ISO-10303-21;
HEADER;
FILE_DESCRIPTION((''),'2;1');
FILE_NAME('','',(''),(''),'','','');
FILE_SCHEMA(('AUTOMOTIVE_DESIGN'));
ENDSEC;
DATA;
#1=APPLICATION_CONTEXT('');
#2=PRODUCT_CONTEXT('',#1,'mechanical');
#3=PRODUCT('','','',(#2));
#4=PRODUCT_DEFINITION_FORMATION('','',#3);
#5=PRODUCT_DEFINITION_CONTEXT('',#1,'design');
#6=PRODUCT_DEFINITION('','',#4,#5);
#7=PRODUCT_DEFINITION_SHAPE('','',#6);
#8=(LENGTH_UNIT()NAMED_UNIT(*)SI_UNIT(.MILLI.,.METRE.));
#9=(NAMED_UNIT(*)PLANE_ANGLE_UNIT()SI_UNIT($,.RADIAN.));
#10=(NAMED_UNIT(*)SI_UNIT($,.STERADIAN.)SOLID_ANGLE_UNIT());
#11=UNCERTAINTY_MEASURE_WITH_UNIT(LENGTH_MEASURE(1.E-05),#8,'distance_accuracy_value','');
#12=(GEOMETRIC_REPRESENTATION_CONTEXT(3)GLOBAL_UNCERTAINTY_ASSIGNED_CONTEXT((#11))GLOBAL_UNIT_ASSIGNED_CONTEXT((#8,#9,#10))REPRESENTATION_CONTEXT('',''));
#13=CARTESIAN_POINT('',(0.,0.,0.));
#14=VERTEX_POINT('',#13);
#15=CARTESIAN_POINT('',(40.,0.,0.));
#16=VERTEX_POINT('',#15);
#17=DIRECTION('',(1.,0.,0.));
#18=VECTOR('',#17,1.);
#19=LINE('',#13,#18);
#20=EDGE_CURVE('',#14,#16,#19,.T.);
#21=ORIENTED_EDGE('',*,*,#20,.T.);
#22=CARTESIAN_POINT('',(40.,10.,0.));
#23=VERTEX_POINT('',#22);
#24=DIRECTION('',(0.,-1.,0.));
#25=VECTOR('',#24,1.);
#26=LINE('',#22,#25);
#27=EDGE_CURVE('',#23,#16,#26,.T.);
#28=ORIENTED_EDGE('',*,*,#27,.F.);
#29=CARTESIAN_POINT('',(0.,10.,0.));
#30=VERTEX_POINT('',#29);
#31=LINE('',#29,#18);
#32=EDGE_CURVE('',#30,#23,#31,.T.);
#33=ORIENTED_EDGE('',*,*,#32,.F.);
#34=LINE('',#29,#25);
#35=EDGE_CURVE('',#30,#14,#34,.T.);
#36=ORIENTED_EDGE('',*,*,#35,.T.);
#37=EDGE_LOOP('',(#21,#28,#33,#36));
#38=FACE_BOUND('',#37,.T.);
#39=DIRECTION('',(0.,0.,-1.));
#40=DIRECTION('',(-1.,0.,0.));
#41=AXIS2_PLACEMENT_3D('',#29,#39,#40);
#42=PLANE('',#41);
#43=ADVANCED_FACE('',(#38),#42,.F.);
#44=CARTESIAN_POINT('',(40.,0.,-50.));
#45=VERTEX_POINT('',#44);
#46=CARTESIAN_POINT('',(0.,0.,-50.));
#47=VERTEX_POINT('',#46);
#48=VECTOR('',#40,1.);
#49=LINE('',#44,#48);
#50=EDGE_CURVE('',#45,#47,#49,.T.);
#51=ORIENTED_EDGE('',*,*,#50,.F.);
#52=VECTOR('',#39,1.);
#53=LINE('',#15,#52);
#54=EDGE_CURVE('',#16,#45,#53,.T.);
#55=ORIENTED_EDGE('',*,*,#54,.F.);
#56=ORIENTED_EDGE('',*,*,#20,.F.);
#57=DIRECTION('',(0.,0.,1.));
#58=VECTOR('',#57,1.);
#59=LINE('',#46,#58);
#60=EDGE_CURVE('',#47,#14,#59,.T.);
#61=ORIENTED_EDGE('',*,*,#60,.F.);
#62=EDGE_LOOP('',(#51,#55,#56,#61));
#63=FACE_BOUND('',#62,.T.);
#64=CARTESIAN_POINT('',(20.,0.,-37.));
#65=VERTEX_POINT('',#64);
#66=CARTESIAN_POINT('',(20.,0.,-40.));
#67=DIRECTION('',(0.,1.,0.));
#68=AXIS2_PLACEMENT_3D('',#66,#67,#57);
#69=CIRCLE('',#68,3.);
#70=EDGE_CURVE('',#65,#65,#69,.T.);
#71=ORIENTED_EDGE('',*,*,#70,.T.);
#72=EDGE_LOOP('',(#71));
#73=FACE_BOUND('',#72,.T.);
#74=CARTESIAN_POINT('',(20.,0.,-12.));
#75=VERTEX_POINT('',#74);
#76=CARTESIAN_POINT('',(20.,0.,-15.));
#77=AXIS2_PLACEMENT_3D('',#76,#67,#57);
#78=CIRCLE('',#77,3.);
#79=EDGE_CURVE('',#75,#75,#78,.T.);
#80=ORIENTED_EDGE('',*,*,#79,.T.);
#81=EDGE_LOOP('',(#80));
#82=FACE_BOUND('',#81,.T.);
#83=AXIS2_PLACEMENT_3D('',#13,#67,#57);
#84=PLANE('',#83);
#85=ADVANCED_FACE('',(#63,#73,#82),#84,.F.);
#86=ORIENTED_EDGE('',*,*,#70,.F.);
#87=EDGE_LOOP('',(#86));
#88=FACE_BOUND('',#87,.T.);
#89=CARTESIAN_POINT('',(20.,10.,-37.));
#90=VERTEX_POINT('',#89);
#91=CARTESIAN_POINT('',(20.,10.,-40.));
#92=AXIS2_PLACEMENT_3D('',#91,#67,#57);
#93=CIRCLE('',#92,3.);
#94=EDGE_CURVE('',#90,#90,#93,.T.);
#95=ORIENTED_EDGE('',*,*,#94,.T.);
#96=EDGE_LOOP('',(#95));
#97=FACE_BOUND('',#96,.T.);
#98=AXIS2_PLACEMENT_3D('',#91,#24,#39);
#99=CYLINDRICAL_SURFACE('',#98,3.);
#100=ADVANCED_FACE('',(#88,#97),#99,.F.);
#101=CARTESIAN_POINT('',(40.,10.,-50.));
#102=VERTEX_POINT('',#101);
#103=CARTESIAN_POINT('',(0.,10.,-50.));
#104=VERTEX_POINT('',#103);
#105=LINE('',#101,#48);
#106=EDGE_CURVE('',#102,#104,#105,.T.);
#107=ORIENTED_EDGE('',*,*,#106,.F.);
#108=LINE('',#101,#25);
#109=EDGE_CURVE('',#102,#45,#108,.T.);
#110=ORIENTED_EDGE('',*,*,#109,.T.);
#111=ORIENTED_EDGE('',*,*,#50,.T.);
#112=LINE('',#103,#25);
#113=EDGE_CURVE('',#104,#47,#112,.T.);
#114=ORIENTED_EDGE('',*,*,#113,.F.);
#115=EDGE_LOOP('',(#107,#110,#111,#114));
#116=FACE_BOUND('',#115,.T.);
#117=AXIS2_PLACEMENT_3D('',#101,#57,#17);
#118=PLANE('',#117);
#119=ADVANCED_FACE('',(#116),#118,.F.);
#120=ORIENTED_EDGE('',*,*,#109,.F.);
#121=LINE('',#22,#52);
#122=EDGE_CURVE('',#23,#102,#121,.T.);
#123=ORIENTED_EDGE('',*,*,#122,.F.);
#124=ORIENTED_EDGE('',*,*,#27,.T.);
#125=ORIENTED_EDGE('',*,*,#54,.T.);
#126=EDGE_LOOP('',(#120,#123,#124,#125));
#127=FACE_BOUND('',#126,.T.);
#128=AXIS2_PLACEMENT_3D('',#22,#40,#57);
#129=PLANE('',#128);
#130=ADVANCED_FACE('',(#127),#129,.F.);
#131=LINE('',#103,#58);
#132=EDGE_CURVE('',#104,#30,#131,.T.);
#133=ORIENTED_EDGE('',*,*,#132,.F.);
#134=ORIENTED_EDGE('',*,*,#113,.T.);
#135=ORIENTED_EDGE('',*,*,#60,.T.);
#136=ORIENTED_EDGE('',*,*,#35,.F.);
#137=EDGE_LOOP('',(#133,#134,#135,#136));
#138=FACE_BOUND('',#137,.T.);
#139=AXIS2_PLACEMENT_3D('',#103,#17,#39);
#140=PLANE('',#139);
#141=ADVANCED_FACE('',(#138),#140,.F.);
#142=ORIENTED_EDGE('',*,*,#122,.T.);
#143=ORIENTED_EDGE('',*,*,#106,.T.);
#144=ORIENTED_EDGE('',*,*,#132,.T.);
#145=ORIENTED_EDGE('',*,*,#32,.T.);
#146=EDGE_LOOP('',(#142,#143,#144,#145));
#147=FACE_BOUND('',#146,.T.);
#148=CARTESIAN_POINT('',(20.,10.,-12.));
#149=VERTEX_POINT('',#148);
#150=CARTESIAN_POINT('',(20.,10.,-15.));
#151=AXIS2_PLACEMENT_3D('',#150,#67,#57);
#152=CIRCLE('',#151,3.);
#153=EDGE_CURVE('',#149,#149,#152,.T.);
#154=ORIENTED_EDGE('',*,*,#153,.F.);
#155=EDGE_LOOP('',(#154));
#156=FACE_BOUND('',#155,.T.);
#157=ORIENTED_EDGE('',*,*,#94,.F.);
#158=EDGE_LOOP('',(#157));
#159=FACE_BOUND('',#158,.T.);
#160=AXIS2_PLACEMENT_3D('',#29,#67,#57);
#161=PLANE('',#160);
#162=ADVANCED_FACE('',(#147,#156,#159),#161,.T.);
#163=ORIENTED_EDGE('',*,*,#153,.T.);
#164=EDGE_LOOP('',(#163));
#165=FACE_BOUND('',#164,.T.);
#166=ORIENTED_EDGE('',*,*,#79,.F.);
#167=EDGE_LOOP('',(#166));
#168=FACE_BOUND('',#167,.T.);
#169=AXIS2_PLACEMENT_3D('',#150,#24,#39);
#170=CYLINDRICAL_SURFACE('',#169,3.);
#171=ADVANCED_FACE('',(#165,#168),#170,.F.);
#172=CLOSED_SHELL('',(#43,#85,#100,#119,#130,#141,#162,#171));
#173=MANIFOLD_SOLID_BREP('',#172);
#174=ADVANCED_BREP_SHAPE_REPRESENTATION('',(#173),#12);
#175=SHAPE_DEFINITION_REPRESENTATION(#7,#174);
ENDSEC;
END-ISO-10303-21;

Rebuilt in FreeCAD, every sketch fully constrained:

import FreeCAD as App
import Part
import Sketcher

V = App.Vector


def add_polygon(sketch, points):
    """Adds a closed chain of lines whose ends are joined by coincident constraints."""
    first, n = sketch.GeometryCount, len(points)
    for a, b in zip(points, points[1:] + points[:1]):
        sketch.addGeometry(Part.LineSegment(App.Vector(*a, 0), App.Vector(*b, 0)), False)
    for i in range(n):
        sketch.addConstraint(Sketcher.Constraint("Coincident", first + i, 2, first + (i + 1) % n, 1))

doc = App.newDocument("Part")
params = doc.addObject("Spreadsheet::Sheet", "Params")
for row, (alias, value) in enumerate([
    ("sketch1_diameter", "6 mm"),
    ("sketch1_width", "40 mm"),
    ("sketch1_height", "50 mm"),
    ("pad1_length", "10 mm"),
], start=1):
    params.set(f"A{row}", alias)
    params.set(f"B{row}", "=" + value)
    params.setAlias(f"B{row}", alias)

body = doc.addObject("PartDesign::Body", "Body")

# Sketch on XZ plane
sketch1 = body.newObject("Sketcher::SketchObject", "Sketch")
sketch1.AttachmentSupport = (doc.getObject("XZ_Plane"), [""])
sketch1.MapMode = "FlatFace"
add_polygon(sketch1, [(0, -50), (0, 0), (40, 0), (40, -50)])  # lines 0-3
sketch1.addGeometry(Part.Circle(V(20, -15, 0), V(0, 0, 1), 3), False)  # 4
sketch1.addGeometry(Part.Circle(V(20, -40, 0), V(0, 0, 1), 3), False)  # 5
sketch1.addConstraint([
    Sketcher.Constraint("Vertical", 0),
    Sketcher.Constraint("Horizontal", 1),
    Sketcher.Constraint("Vertical", 2),
    Sketcher.Constraint("Horizontal", 3),
    Sketcher.Constraint("Coincident", 0, 2, -1, 1),
    Sketcher.Constraint("Equal", 4, 5),
    Sketcher.Constraint("Vertical", 4, 3, 5, 3),
    Sketcher.Constraint("Diameter", 4, 6.0),
    Sketcher.Constraint("DistanceX", 1, 1, 1, 2, 40.0),
    Sketcher.Constraint("DistanceY", 0, 1, 0, 2, 50.0),
    Sketcher.Constraint("DistanceX", -1, 1, 4, 3, 20.0),
    Sketcher.Constraint("DistanceY", 4, 3, -1, 1, 15.0),
    Sketcher.Constraint("DistanceY", 5, 3, -1, 1, 40.0),
])
sketch1.setExpression("Constraints[11]", "Params.sketch1_diameter")
sketch1.setExpression("Constraints[12]", "Params.sketch1_width")
sketch1.setExpression("Constraints[13]", "Params.sketch1_height")
pad1 = body.newObject("PartDesign::Pad", "Pad")
pad1.Profile = sketch1
pad1.setExpression("Length", "Params.pad1_length")
pad1.Reversed = True

doc.recompute()
